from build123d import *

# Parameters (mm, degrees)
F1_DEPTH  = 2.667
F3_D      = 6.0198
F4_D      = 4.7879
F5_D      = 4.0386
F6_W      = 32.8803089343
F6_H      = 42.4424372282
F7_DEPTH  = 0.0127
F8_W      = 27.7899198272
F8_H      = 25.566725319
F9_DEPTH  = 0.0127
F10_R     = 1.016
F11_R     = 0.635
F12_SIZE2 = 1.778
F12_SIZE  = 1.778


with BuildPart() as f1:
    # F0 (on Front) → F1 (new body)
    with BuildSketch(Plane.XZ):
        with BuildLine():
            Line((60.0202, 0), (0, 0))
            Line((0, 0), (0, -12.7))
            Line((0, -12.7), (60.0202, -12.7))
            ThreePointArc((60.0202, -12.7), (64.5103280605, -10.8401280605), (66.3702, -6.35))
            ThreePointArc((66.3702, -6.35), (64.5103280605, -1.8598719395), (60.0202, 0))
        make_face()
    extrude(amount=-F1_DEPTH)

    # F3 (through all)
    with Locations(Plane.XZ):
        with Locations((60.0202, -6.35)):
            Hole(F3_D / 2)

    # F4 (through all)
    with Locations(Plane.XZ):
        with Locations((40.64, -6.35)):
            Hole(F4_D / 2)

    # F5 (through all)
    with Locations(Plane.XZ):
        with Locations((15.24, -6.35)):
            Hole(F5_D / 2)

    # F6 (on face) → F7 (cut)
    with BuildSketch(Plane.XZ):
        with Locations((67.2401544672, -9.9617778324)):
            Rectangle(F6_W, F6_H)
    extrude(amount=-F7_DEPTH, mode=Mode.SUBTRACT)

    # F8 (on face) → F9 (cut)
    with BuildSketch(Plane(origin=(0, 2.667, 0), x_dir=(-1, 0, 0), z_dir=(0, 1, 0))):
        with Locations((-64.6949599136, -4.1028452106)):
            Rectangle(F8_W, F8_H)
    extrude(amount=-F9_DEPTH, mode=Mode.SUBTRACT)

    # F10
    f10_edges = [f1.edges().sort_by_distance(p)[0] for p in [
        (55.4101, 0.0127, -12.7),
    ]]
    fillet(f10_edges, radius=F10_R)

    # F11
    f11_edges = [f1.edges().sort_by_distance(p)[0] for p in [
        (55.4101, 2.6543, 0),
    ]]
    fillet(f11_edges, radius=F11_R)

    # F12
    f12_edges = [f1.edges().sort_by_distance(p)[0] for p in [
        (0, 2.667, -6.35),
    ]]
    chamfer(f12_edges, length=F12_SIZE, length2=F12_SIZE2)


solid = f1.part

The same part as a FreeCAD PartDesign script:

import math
import FreeCAD as App
import Part
import Sketcher
from FreeCAD import Vector
Q = App.Units.Quantity


def edges_at(feature, points):
    """Names of the edges that pass closest to the given points."""
    edges = feature.Shape.Edges
    near = lambda p: min(range(len(edges)), key=lambda i: edges[i].distToShape(Part.Vertex(*p))[0])
    return sorted({f"Edge{near(p) + 1}" for p in points})

doc = App.newDocument("Part")
body = doc.addObject("PartDesign::Body", "Body")

sketch1 = body.newObject("Sketcher::SketchObject", "Sketch")
sketch1.AttachmentSupport = (doc.getObject("XZ_Plane"), [""])
sketch1.MapMode = "FlatFace"
sketch1.addGeometry([
    Part.LineSegment(Vector(60, 0, 0), Vector(0, 0, 0)),
    Part.LineSegment(Vector(0, 0, 0), Vector(0, -13, 0)),
    Part.LineSegment(Vector(0, -13, 0), Vector(60, -13, 0)),
    Part.ArcOfCircle(Part.Circle(Vector(60, -6, 0), Vector(0, 0, 1), 6), math.radians(-90), math.radians(0)),
    Part.ArcOfCircle(Part.Circle(Vector(60, -6, 0), Vector(0, 0, 1), 6), math.radians(0), math.radians(90)),
], False)
sketch1.addConstraint([
    Sketcher.Constraint("Coincident", 0, 2, 1, 1),
    Sketcher.Constraint("Coincident", 1, 2, 2, 1),
    Sketcher.Constraint("Tangent", 2, 2, 3, 1),
    Sketcher.Constraint("Tangent", 3, 2, 4, 1),
    Sketcher.Constraint("Tangent", 4, 2, 0, 1),
    Sketcher.Constraint("Horizontal", 0),
    Sketcher.Constraint("Vertical", 1),
    Sketcher.Constraint("Horizontal", 2),
    Sketcher.Constraint("Coincident", 0, 2, -1, 1),
    Sketcher.Constraint("Equal", 3, 4),
    Sketcher.Constraint("Horizontal", 4, 3, 3, 2),
    Sketcher.Constraint("Radius", 3, Q("0.25 in")),
    Sketcher.Constraint("DistanceX", 0, 2, 0, 1, Q("2.363 in")),
])
pad1 = body.newObject("PartDesign::Pad", "Pad")
pad1.Profile = sketch1
pad1.Length = Q("0.105 in")
pad1.Reversed = True

sketch2 = body.newObject("Sketcher::SketchObject", "Sketch001")
sketch2.AttachmentSupport = (doc.getObject("XZ_Plane"), [""])
sketch2.MapMode = "FlatFace"
sketch2.addGeometry(Part.Circle(Vector(60, -6.3, 0), Vector(0, 0, 1), 3), False)
sketch2.addConstraint([
    Sketcher.Constraint("Diameter", 0, Q("0.237 in")),
    Sketcher.Constraint("DistanceY", 0, 3, -1, 1, Q("0.25 in")),
    Sketcher.Constraint("DistanceX", -1, 1, 0, 3, Q("2.363 in")),
])
doc.recompute()
hole = body.newObject("PartDesign::Hole", "Hole")
hole.Profile = sketch2
hole.ThreadType = "None"
hole.Diameter = Q("0.237 in")
hole.DepthType = "ThroughAll"

sketch3 = body.newObject("Sketcher::SketchObject", "Sketch002")
sketch3.AttachmentSupport = (doc.getObject("XZ_Plane"), [""])
sketch3.MapMode = "FlatFace"
sketch3.addGeometry(Part.Circle(Vector(40.6, -6.3, 0), Vector(0, 0, 1), 2.4), False)
sketch3.addConstraint([
    Sketcher.Constraint("Diameter", 0, Q("0.1885 in")),
    Sketcher.Constraint("DistanceX", -1, 1, 0, 3, Q("1.6 in")),
    Sketcher.Constraint("DistanceY", 0, 3, -1, 1, Q("0.25 in")),
])
doc.recompute()
hole2 = body.newObject("PartDesign::Hole", "Hole001")
hole2.Profile = sketch3
hole2.ThreadType = "None"
hole2.Diameter = Q("0.1885 in")
hole2.DepthType = "ThroughAll"

sketch4 = body.newObject("Sketcher::SketchObject", "Sketch003")
sketch4.AttachmentSupport = (doc.getObject("XZ_Plane"), [""])
sketch4.MapMode = "FlatFace"
sketch4.addGeometry(Part.Circle(Vector(15.2, -6.3, 0), Vector(0, 0, 1), 2), False)
sketch4.addConstraint([
    Sketcher.Constraint("Diameter", 0, Q("0.159 in")),
    Sketcher.Constraint("DistanceX", -1, 1, 0, 3, Q("0.6 in")),
    Sketcher.Constraint("DistanceY", 0, 3, -1, 1, Q("0.25 in")),
])
doc.recompute()
hole3 = body.newObject("PartDesign::Hole", "Hole002")
hole3.Profile = sketch4
hole3.ThreadType = "None"
hole3.Diameter = Q("0.159 in")
hole3.DepthType = "ThroughAll"

sketch5 = body.newObject("Sketcher::SketchObject", "Sketch004")
sketch5.AttachmentSupport = (doc.getObject("XZ_Plane"), [""])
sketch5.MapMode = "FlatFace"
sketch5.addGeometry([
    Part.LineSegment(Vector(51, 11, 0), Vector(51, -31, 0)),
    Part.LineSegment(Vector(51, -31, 0), Vector(84, -31, 0)),
    Part.LineSegment(Vector(84, -31, 0), Vector(84, 11, 0)),
    Part.LineSegment(Vector(84, 11, 0), Vector(51, 11, 0)),
], False)
sketch5.addConstraint([
    Sketcher.Constraint("Coincident", 0, 2, 1, 1),
    Sketcher.Constraint("Coincident", 1, 2, 2, 1),
    Sketcher.Constraint("Coincident", 2, 2, 3, 1),
    Sketcher.Constraint("Coincident", 3, 2, 0, 1),
    Sketcher.Constraint("Vertical", 0),
    Sketcher.Constraint("Horizontal", 1),
    Sketcher.Constraint("Vertical", 2),
    Sketcher.Constraint("Horizontal", 3),
    Sketcher.Constraint("DistanceX", -1, 1, 0, 2, Q("2 in")),
    Sketcher.Constraint("DistanceX", 1, 1, 1, 2, 32.880309),
    Sketcher.Constraint("DistanceY", 0, 2, 0, 1, 42.442437),
    Sketcher.Constraint("DistanceY", -1, 1, 2, 2, 11.259441),
])
pocket1 = body.newObject("PartDesign::Pocket", "Pocket")
pocket1.Profile = sketch5
pocket1.Length = Q("0.0005 in")

sketch6 = body.newObject("Sketcher::SketchObject", "Sketch005")
sketch6.AttachmentSupport = (doc.getObject("XZ_Plane"), [""])
sketch6.MapMode = "FlatFace"
sketch6.AttachmentOffset = App.Placement(Vector(0, 0, -0.105 * 25.4), App.Rotation())
sketch6.addGeometry([
    Part.LineSegment(Vector(79, 9, 0), Vector(79, -17, 0)),
    Part.LineSegment(Vector(79, -17, 0), Vector(51, -17, 0)),
    Part.LineSegment(Vector(51, -17, 0), Vector(51, 9, 0)),
    Part.LineSegment(Vector(51, 9, 0), Vector(79, 9, 0)),
], False)
sketch6.addConstraint([
    Sketcher.Constraint("Coincident", 0, 2, 1, 1),
    Sketcher.Constraint("Coincident", 1, 2, 2, 1),
    Sketcher.Constraint("Coincident", 2, 2, 3, 1),
    Sketcher.Constraint("Coincident", 3, 2, 0, 1),
    Sketcher.Constraint("Vertical", 0),
    Sketcher.Constraint("Horizontal", 1),
    Sketcher.Constraint("Vertical", 2),
    Sketcher.Constraint("Horizontal", 3),
    Sketcher.Constraint("DistanceX", -1, 1, 1, 2, Q("2 in")),
    Sketcher.Constraint("DistanceX", 1, 2, 1, 1, 27.78992),
    Sketcher.Constraint("DistanceY", 0, 2, 0, 1, 25.566725),
    Sketcher.Constraint("DistanceY", 0, 2, -1, 1, 16.886208),
])
pocket2 = body.newObject("PartDesign::Pocket", "Pocket001")
pocket2.Profile = sketch6
pocket2.Length = Q("0.0005 in")
pocket2.Reversed = True
doc.recompute()

fillet = body.newObject("PartDesign::Fillet", "Fillet")
fillet.Base = (pocket2, edges_at(pocket2, [(55.41, 0.013, -12.7)]))
fillet.Radius = Q("0.04 in")
doc.recompute()

fillet2 = body.newObject("PartDesign::Fillet", "Fillet001")
fillet2.Base = (fillet, edges_at(fillet, [(55.41, 2.654, 0)]))
fillet2.Radius = Q("0.025 in")
doc.recompute()

chamfer = body.newObject("PartDesign::Chamfer", "Chamfer")
chamfer.Base = (fillet2, edges_at(fillet2, [(0, 2.667, -6.35)]))
chamfer.ChamferType = "Two distances"
chamfer.Size = Q("0.07 in")
chamfer.Size2 = Q("0.07 in")

doc.recompute()
